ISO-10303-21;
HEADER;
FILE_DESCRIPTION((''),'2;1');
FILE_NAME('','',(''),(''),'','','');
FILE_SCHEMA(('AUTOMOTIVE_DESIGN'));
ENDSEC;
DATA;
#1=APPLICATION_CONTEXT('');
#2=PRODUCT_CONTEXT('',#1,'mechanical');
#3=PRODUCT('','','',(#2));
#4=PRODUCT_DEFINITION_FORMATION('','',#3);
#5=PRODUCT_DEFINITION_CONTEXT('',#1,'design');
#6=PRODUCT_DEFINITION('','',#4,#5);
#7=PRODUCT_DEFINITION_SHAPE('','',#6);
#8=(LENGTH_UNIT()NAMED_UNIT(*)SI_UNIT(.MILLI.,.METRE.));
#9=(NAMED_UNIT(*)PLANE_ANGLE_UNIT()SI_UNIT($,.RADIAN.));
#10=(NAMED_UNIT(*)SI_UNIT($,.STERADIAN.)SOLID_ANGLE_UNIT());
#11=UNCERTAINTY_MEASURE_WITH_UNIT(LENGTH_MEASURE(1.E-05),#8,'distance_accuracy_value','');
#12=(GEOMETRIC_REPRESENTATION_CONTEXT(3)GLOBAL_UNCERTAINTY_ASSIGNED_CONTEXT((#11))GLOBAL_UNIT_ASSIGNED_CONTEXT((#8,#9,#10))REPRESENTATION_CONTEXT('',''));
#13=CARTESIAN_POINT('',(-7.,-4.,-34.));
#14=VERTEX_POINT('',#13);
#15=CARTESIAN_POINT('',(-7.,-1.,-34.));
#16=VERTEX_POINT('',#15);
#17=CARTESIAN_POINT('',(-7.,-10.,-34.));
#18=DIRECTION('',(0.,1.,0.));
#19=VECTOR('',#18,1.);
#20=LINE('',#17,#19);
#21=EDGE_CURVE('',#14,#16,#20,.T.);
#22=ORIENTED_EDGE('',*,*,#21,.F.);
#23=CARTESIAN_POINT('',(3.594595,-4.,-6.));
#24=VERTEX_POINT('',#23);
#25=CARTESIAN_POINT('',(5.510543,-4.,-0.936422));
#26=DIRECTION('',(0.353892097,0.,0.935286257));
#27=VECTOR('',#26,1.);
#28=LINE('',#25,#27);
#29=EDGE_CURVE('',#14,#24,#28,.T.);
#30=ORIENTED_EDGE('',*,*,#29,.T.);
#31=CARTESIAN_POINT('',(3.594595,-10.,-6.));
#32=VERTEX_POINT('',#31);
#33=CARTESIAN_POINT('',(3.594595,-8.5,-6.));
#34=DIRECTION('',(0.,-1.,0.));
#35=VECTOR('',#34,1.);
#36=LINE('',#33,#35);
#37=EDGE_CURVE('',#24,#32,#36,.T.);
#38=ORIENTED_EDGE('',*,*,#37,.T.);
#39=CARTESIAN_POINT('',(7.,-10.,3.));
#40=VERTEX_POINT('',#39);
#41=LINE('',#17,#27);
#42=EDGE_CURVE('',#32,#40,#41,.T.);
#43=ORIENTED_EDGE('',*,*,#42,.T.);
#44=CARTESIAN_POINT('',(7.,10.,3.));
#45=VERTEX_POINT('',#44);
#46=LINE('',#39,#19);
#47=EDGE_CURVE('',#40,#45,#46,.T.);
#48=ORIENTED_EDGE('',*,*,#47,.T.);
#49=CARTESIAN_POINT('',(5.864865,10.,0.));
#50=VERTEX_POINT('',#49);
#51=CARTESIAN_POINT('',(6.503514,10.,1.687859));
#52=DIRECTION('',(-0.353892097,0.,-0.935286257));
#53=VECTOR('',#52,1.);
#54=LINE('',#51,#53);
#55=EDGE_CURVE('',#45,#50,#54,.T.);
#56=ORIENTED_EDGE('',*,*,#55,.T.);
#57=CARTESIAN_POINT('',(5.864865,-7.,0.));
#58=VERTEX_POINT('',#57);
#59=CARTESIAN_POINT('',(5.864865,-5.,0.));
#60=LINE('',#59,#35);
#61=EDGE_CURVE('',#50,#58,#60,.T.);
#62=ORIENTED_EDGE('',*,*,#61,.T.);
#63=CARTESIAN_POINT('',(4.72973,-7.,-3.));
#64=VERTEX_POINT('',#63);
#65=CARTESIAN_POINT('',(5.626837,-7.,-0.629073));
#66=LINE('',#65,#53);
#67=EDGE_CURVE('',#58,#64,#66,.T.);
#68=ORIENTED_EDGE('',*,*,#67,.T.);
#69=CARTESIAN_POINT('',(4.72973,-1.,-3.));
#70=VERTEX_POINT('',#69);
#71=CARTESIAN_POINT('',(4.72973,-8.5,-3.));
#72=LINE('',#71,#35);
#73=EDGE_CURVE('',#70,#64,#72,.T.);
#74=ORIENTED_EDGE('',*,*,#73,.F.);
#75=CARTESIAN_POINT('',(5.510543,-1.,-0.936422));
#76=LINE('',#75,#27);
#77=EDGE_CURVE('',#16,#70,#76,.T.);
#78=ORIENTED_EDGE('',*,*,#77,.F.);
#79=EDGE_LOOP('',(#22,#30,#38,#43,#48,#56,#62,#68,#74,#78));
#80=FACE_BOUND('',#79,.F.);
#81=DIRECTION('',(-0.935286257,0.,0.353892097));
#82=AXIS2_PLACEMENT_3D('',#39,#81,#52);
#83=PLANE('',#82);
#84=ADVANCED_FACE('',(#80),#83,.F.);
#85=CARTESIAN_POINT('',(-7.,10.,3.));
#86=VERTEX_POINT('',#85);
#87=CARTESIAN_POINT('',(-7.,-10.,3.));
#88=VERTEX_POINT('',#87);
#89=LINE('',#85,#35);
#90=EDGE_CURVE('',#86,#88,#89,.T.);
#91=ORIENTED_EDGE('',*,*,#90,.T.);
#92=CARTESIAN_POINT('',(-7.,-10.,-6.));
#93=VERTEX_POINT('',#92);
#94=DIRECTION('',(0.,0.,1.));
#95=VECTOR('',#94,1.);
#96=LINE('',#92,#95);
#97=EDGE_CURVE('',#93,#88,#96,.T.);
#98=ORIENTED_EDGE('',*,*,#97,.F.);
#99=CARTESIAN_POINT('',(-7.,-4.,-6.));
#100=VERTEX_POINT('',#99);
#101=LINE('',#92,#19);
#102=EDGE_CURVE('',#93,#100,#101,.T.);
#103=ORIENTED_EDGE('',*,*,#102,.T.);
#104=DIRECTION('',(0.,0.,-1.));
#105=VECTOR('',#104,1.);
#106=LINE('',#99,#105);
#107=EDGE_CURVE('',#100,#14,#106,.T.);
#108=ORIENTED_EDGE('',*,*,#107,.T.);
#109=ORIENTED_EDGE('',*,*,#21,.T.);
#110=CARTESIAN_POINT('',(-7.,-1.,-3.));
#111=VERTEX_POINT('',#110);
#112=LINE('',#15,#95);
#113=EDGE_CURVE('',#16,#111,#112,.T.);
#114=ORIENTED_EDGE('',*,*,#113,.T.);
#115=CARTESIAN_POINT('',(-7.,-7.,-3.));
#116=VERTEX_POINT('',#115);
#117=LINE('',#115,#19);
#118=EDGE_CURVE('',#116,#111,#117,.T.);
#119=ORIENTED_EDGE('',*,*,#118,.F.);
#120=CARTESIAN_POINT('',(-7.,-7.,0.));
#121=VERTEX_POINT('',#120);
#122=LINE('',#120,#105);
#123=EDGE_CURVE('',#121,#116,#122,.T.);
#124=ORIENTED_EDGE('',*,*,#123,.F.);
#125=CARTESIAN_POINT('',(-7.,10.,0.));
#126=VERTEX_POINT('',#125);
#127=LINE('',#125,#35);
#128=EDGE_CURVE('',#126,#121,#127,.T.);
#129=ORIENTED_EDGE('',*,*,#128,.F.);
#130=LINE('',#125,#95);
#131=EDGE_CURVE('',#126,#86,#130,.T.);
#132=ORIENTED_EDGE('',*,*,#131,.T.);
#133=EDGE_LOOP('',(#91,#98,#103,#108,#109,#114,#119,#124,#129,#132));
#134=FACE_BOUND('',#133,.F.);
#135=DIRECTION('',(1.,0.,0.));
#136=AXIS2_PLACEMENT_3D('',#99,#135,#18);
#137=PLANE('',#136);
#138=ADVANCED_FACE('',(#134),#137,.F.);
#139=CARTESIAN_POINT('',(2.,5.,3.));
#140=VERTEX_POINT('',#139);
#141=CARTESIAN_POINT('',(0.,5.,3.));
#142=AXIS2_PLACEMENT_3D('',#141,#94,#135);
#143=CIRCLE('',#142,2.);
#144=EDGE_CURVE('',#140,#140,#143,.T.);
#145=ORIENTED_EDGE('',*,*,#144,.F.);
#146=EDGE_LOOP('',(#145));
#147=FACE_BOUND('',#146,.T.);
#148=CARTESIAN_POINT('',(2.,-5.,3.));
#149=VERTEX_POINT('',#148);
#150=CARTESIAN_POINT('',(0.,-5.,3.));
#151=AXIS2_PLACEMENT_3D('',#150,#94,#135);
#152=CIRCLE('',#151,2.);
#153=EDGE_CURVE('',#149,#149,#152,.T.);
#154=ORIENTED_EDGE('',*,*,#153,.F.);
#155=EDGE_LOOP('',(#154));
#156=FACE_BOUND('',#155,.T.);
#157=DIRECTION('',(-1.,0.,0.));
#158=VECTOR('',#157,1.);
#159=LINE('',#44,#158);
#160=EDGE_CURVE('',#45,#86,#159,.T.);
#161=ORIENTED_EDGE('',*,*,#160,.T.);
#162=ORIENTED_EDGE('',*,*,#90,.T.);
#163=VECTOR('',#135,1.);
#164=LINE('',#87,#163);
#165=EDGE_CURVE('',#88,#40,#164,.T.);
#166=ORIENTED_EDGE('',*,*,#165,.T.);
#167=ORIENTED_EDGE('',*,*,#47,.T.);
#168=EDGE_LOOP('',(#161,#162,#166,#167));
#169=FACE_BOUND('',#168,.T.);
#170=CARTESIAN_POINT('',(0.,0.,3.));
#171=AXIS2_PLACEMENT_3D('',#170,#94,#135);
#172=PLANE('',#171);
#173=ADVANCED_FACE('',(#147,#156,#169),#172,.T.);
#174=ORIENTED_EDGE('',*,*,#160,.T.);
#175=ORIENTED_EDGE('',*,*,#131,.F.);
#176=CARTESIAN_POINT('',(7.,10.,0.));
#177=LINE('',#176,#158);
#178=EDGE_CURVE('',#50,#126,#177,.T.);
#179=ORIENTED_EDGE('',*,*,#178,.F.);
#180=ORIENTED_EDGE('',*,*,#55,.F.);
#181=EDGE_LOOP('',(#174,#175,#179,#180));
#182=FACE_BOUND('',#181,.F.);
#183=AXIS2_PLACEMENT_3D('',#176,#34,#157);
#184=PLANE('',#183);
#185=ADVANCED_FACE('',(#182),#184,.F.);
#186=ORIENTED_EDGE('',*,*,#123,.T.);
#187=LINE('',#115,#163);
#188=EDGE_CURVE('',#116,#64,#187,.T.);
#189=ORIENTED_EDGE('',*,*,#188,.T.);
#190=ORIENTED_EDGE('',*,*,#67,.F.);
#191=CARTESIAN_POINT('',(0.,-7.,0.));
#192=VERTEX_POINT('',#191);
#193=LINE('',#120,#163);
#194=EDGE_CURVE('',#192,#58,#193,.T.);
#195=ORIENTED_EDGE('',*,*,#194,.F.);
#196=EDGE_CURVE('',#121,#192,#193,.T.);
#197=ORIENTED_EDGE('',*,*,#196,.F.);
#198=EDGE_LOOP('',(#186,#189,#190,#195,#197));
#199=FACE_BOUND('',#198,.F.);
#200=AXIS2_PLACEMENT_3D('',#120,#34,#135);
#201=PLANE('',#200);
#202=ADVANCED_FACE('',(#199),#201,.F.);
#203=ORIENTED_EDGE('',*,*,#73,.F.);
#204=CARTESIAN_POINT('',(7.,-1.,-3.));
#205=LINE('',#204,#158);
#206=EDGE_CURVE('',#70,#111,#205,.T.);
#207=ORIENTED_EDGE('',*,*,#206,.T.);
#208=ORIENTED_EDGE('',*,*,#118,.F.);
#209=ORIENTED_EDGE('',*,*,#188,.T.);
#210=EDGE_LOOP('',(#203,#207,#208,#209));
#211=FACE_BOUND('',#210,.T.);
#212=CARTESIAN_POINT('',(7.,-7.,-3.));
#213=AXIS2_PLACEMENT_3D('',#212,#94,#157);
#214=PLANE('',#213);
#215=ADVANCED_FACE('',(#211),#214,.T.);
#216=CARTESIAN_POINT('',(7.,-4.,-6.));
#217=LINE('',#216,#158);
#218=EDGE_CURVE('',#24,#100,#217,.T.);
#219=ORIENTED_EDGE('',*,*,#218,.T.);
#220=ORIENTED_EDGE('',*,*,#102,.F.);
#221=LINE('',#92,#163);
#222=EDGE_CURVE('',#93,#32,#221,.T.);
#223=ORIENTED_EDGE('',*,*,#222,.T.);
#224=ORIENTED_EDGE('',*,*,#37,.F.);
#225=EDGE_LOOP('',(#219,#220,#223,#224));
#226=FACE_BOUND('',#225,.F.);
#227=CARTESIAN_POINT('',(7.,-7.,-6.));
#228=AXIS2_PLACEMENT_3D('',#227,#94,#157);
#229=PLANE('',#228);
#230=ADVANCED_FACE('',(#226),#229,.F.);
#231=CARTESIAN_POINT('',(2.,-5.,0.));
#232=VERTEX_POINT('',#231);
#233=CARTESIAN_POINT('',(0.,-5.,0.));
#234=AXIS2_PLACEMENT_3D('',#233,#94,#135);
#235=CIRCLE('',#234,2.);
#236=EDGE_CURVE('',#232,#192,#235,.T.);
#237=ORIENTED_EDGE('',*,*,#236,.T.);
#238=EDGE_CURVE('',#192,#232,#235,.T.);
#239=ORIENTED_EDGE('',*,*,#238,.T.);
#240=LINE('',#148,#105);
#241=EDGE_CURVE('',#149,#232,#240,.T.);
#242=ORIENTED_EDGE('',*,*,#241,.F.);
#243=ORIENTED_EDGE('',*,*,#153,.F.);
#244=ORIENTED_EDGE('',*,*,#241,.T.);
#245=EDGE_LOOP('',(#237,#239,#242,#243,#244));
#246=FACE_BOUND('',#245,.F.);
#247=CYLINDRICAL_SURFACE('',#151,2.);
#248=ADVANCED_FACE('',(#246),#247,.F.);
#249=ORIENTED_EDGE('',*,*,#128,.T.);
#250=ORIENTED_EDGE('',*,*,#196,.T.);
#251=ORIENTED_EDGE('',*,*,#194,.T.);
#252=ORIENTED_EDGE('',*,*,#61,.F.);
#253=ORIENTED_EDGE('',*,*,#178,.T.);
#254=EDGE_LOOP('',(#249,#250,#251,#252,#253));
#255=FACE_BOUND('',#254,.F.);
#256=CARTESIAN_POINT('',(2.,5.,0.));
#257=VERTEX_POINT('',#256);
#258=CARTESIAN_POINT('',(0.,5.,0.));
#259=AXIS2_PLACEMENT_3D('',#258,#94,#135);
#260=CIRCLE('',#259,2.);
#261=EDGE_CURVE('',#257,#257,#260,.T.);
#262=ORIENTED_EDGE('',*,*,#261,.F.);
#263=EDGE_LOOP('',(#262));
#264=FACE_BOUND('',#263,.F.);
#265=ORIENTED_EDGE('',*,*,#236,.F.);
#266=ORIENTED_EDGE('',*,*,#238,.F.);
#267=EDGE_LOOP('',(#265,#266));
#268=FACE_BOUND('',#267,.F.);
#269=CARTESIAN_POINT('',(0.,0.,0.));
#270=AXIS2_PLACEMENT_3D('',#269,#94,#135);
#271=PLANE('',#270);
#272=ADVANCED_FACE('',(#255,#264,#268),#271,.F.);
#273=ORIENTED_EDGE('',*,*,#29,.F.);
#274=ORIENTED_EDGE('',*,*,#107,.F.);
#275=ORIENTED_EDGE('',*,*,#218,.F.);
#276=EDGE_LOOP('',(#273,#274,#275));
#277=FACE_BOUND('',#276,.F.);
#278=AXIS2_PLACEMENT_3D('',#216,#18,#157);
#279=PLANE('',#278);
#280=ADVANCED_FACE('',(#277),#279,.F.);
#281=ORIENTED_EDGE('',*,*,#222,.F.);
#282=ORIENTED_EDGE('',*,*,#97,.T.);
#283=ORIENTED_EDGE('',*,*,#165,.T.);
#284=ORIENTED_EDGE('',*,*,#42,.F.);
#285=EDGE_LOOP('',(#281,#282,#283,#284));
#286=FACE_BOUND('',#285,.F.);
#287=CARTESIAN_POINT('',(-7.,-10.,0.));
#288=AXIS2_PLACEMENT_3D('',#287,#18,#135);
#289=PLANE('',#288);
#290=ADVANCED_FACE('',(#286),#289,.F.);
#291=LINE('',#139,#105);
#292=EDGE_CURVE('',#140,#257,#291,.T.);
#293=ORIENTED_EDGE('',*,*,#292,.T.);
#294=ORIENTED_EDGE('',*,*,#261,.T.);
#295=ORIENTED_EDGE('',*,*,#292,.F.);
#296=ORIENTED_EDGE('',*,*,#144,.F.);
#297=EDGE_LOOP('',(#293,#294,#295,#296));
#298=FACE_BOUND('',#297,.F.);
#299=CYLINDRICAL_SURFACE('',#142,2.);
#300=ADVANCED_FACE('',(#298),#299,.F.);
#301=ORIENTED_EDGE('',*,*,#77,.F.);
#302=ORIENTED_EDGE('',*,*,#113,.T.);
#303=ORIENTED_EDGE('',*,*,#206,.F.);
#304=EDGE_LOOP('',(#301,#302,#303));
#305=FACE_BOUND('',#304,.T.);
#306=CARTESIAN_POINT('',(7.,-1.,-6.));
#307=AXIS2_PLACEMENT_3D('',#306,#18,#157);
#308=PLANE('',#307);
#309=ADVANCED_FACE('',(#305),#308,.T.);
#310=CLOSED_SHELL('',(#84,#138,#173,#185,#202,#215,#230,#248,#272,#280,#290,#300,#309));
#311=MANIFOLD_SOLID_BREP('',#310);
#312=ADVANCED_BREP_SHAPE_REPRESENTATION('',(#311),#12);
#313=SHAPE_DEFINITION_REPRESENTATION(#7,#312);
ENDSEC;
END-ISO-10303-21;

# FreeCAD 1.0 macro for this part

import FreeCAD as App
import Part
import Sketcher

doc = App.newDocument("Part")
body = doc.addObject("PartDesign::Body", "Body")

sketch1 = body.newObject("Sketcher::SketchObject", "Sketch")
sketch1.AttachmentSupport = (doc.getObject("XY_Plane"), [""])
sketch1.MapMode = "FlatFace"
sketch1.addGeometry([
    Part.LineSegment(App.Vector(-7, 10, 0), App.Vector(-7, -10, 0)),
    Part.LineSegment(App.Vector(-7, -10, 0), App.Vector(7, -10, 0)),
    Part.LineSegment(App.Vector(7, -10, 0), App.Vector(7, 10, 0)),
    Part.LineSegment(App.Vector(7, 10, 0), App.Vector(-7, 10, 0)),
], False)
sketch1.addConstraint([
    Sketcher.Constraint("Coincident", 0, 2, 1, 1),
    Sketcher.Constraint("Coincident", 1, 2, 2, 1),
    Sketcher.Constraint("Coincident", 2, 2, 3, 1),
    Sketcher.Constraint("Coincident", 3, 2, 0, 1),
    Sketcher.Constraint("Vertical", 0),
    Sketcher.Constraint("Horizontal", 1),
    Sketcher.Constraint("Vertical", 2),
    Sketcher.Constraint("Horizontal", 3),
    Sketcher.Constraint("Symmetric", 0, 2, 2, 2, -1, 1),
    Sketcher.Constraint("DistanceX", 1, 1, 1, 2, 14.0),
    Sketcher.Constraint("DistanceY", 0, 2, 0, 1, 20.0),
])
pad1 = body.newObject("PartDesign::Pad", "Pad")
pad1.Profile = sketch1
pad1.Length = 3

sketch2 = body.newObject("Sketcher::SketchObject", "Sketch001")
sketch2.AttachmentSupport = (doc.getObject("XY_Plane"), [""])
sketch2.MapMode = "FlatFace"
sketch2.addGeometry([
    Part.LineSegment(App.Vector(7, -10, 0), App.Vector(-7, -10, 0)),
    Part.LineSegment(App.Vector(-7, -10, 0), App.Vector(-7, -7, 0)),
    Part.LineSegment(App.Vector(-7, -7, 0), App.Vector(7, -7, 0)),
    Part.LineSegment(App.Vector(7, -7, 0), App.Vector(7, -10, 0)),
], False)
sketch2.addConstraint([
    Sketcher.Constraint("Coincident", 0, 2, 1, 1),
    Sketcher.Constraint("Coincident", 1, 2, 2, 1),
    Sketcher.Constraint("Coincident", 2, 2, 3, 1),
    Sketcher.Constraint("Coincident", 3, 2, 0, 1),
    Sketcher.Constraint("Horizontal", 0),
    Sketcher.Constraint("Vertical", 1),
    Sketcher.Constraint("Horizontal", 2),
    Sketcher.Constraint("Vertical", 3),
    Sketcher.Constraint("DistanceY", 1, 1, 1, 2, 3.0),
    Sketcher.Constraint("DistanceX", 0, 2, 0, 1, 14.0),
    Sketcher.Constraint("DistanceX", 0, 2, -1, 1, 7.0),
    Sketcher.Constraint("DistanceY", 0, 2, -1, 1, 10.0),
])
pad2 = body.newObject("PartDesign::Pad", "Pad001")
pad2.Profile = sketch2
pad2.Length = 6
pad2.Reversed = True

sketch3 = body.newObject("Sketcher::SketchObject", "Sketch002")
sketch3.AttachmentSupport = (doc.getObject("XZ_Plane"), [""])
sketch3.MapMode = "FlatFace"
sketch3.AttachmentOffset = App.Placement(App.Vector(0, 0, 7), App.Rotation())
sketch3.addGeometry([
    Part.LineSegment(App.Vector(7, -3, 0), App.Vector(7, -6, 0)),
    Part.LineSegment(App.Vector(7, -6, 0), App.Vector(-7, -6, 0)),
    Part.LineSegment(App.Vector(-7, -6, 0), App.Vector(-7, -3, 0)),
    Part.LineSegment(App.Vector(-7, -3, 0), App.Vector(7, -3, 0)),
], False)
sketch3.addConstraint([
    Sketcher.Constraint("Coincident", 0, 2, 1, 1),
    Sketcher.Constraint("Coincident", 1, 2, 2, 1),
    Sketcher.Constraint("Coincident", 2, 2, 3, 1),
    Sketcher.Constraint("Coincident", 3, 2, 0, 1),
    Sketcher.Constraint("Vertical", 0),
    Sketcher.Constraint("Horizontal", 1),
    Sketcher.Constraint("Vertical", 2),
    Sketcher.Constraint("Horizontal", 3),
    Sketcher.Constraint("DistanceY", 0, 2, 0, 1, 3.0),
    Sketcher.Constraint("DistanceY", 2, 2, -1, 1, 3.0),
    Sketcher.Constraint("DistanceX", 1, 2, 1, 1, 14.0),
    Sketcher.Constraint("DistanceX", -1, 1, 0, 2, 7.0),
])
pad3 = body.newObject("PartDesign::Pad", "Pad002")
pad3.Profile = sketch3
pad3.Length = 6
pad3.Reversed = True

sketch4 = body.newObject("Sketcher::SketchObject", "Sketch003")
sketch4.AttachmentSupport = (doc.getObject("XY_Plane"), [""])
sketch4.MapMode = "FlatFace"
sketch4.AttachmentOffset = App.Placement(App.Vector(0, 0, -6), App.Rotation())
sketch4.addGeometry([
    Part.LineSegment(App.Vector(7, -1, 0), App.Vector(7, -4, 0)),
    Part.LineSegment(App.Vector(7, -4, 0), App.Vector(-7, -4, 0)),
    Part.LineSegment(App.Vector(-7, -4, 0), App.Vector(-7, -1, 0)),
    Part.LineSegment(App.Vector(-7, -1, 0), App.Vector(7, -1, 0)),
], False)
sketch4.addConstraint([
    Sketcher.Constraint("Coincident", 0, 2, 1, 1),
    Sketcher.Constraint("Coincident", 1, 2, 2, 1),
    Sketcher.Constraint("Coincident", 2, 2, 3, 1),
    Sketcher.Constraint("Coincident", 3, 2, 0, 1),
    Sketcher.Constraint("Vertical", 0),
    Sketcher.Constraint("Horizontal", 1),
    Sketcher.Constraint("Vertical", 2),
    Sketcher.Constraint("Horizontal", 3),
    Sketcher.Constraint("DistanceY", 0, 2, 0, 1, 3.0),
    Sketcher.Constraint("DistanceX", 1, 2, 1, 1, 14.0),
    Sketcher.Constraint("DistanceX", -1, 1, 0, 2, 7.0),
    Sketcher.Constraint("DistanceY", 0, 2, -1, 1, 4.0),
])
pad4 = body.newObject("PartDesign::Pad", "Pad003")
pad4.Profile = sketch4
pad4.Length = 28
pad4.Reversed = True

sketch5 = body.newObject("Sketcher::SketchObject", "Sketch004")
sketch5.AttachmentSupport = (doc.getObject("XY_Plane"), [""])
sketch5.MapMode = "FlatFace"
sketch5.AttachmentOffset = App.Placement(App.Vector(0, 0, 3), App.Rotation())
sketch5.addGeometry([
    Part.Circle(App.Vector(0, 5, 0), App.Vector(0, 0, 1), 2),
    Part.Circle(App.Vector(0, -5, 0), App.Vector(0, 0, 1), 2),
], False)
sketch5.addConstraint([
    Sketcher.Constraint("Equal", 0, 1),
    Sketcher.Constraint("Symmetric", 0, 3, 1, 3, -1, 1),
    Sketcher.Constraint("PointOnObject", 0, 3, -2),
    Sketcher.Constraint("Diameter", 0, 4.0),
    Sketcher.Constraint("DistanceY", -1, 1, 0, 3, 5.0),
])
pocket1 = body.newObject("PartDesign::Pocket", "Pocket")
pocket1.Profile = sketch5
pocket1.Length = 6

sketch6 = body.newObject("Sketcher::SketchObject", "Sketch005")
sketch6.AttachmentSupport = (doc.getObject("XZ_Plane"), [""])
sketch6.MapMode = "FlatFace"
sketch6.AttachmentOffset = App.Placement(App.Vector(0, 0, 10), App.Rotation())
sketch6.addGeometry([
    Part.LineSegment(App.Vector(7, 3, 0), App.Vector(-7, -34, 0)),
    Part.LineSegment(App.Vector(-7, -34, 0), App.Vector(7, -34, 0)),
    Part.LineSegment(App.Vector(7, -34, 0), App.Vector(7, 3, 0)),
], False)
sketch6.addConstraint([
    Sketcher.Constraint("Coincident", 0, 2, 1, 1),
    Sketcher.Constraint("Coincident", 1, 2, 2, 1),
    Sketcher.Constraint("Coincident", 2, 2, 0, 1),
    Sketcher.Constraint("Horizontal", 1),
    Sketcher.Constraint("Vertical", 2),
    Sketcher.Constraint("DistanceX", 1, 1, 1, 2, 14.0),
    Sketcher.Constraint("DistanceY", 2, 1, 2, 2, 37.0),
    Sketcher.Constraint("DistanceX", 0, 2, -1, 1, 7.0),
    Sketcher.Constraint("DistanceY", 0, 2, -1, 1, 34.0),
])
pocket2 = body.newObject("PartDesign::Pocket", "Pocket001")
pocket2.Profile = sketch6
pocket2.Length = 28

doc.recompute()
